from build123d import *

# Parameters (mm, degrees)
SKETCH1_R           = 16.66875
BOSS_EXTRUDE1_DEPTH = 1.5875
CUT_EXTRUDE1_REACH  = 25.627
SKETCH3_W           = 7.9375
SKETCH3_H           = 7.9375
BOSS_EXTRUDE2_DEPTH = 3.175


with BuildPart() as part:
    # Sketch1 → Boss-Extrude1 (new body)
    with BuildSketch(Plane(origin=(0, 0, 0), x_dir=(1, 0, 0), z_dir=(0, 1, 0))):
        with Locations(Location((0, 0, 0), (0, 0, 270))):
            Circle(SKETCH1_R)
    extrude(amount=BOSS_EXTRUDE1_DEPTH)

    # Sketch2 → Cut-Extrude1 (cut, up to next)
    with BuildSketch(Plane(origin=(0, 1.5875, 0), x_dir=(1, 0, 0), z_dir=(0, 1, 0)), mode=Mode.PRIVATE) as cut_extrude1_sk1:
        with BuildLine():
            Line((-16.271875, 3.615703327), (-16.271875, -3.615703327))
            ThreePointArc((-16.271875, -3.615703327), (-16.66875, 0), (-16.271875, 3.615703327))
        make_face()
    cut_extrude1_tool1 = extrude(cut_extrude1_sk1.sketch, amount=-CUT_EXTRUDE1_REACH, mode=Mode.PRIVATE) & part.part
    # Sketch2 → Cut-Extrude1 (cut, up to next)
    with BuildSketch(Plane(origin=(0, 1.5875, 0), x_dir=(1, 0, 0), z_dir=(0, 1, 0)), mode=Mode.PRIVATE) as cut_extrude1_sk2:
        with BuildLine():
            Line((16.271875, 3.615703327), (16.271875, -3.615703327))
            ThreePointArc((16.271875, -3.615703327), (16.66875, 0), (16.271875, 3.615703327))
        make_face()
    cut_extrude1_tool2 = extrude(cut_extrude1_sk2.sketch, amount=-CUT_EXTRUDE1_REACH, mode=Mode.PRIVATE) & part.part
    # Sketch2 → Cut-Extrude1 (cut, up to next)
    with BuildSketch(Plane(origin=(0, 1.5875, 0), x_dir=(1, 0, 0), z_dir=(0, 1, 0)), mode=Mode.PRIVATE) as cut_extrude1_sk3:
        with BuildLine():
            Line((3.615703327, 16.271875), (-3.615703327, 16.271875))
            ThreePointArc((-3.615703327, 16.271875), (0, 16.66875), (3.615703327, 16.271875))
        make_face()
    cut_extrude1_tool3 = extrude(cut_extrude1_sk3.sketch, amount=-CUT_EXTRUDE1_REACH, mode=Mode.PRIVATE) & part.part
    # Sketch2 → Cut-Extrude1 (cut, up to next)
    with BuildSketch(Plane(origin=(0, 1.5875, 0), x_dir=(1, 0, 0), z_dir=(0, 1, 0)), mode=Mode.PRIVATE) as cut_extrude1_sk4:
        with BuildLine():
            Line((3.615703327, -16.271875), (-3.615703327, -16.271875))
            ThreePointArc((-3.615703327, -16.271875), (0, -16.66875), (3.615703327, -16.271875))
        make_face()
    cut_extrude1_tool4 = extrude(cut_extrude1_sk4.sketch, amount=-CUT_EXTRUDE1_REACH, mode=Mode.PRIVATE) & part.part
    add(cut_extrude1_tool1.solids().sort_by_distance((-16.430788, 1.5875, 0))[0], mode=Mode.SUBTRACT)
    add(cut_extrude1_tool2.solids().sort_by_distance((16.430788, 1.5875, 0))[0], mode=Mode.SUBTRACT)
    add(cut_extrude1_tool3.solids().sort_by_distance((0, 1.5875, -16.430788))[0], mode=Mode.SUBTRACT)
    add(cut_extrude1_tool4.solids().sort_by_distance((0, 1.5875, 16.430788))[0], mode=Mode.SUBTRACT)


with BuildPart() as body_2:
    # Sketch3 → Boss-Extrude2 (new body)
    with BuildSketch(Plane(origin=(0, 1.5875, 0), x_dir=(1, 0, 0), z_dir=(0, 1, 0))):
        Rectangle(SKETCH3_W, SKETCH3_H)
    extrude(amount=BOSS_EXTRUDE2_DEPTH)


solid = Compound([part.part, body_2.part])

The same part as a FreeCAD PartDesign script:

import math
import FreeCAD as App
import Part
import Sketcher

V = App.Vector
Q = App.Units.Quantity

doc = App.newDocument("Part")
body = doc.addObject("PartDesign::Body", "Body")

# Sketch on XZ plane
sketch1 = body.newObject("Sketcher::SketchObject", "Sketch")
sketch1.AttachmentSupport = (doc.getObject("XZ_Plane"), [""])
sketch1.MapMode = "FlatFace"
sketch1.addGeometry(Part.Circle(V(0, 0, 0), V(0, 0, 1), 17), False)
sketch1.addConstraint([
    Sketcher.Constraint("Coincident", 0, 3, -1, 1),
    Sketcher.Constraint("Diameter", 0, Q("1.3125 in")),
])
pad1 = body.newObject("PartDesign::Pad", "Pad")
pad1.Profile = sketch1
pad1.Length = Q("0.0625 in")
pad1.Reversed = True

# Sketch on XZ plane
sketch2 = body.newObject("Sketcher::SketchObject", "Sketch001")
sketch2.AttachmentSupport = (doc.getObject("XZ_Plane"), [""])
sketch2.MapMode = "FlatFace"
sketch2.AttachmentOffset = App.Placement(V(0, 0, -0.0625 * 25.4), App.Rotation())
sketch2.addGeometry([
    Part.LineSegment(V(-16, 4, 0), V(-16, -4, 0)),
    Part.ArcOfCircle(Part.Circle(V(0, 0, 0), V(0, 0, 1), 17), math.radians(167), math.radians(193)),
], False)
sketch2.addConstraint([
    Sketcher.Constraint("Coincident", 0, 1, 1, 1),
    Sketcher.Constraint("Coincident", 1, 2, 0, 2),
    Sketcher.Constraint("Vertical", 0),
    Sketcher.Constraint("Coincident", 1, 3, -1, 1),
    Sketcher.Constraint("Radius", 1, Q("0.65625 in")),
    Sketcher.Constraint("DistanceX", 0, 1, -1, 1, Q("0.640625 in")),
])
pocket1 = body.newObject("PartDesign::Pocket", "Pocket")
pocket1.Profile = sketch2
pocket1.Type = "UpToFirst"
pocket1.Reversed = True

# Sketch on XZ plane
sketch3 = body.newObject("Sketcher::SketchObject", "Sketch002")
sketch3.AttachmentSupport = (doc.getObject("XZ_Plane"), [""])
sketch3.MapMode = "FlatFace"
sketch3.AttachmentOffset = App.Placement(V(0, 0, -0.0625 * 25.4), App.Rotation())
sketch3.addGeometry([
    Part.LineSegment(V(16, -4, 0), V(16, 4, 0)),
    Part.ArcOfCircle(Part.Circle(V(0, 0, 0), V(0, 0, 1), 17), math.radians(-13), math.radians(13)),
], False)
sketch3.addConstraint([
    Sketcher.Constraint("Coincident", 0, 1, 1, 1),
    Sketcher.Constraint("Coincident", 1, 2, 0, 2),
    Sketcher.Constraint("Vertical", 0),
    Sketcher.Constraint("Coincident", 1, 3, -1, 1),
    Sketcher.Constraint("Radius", 1, Q("0.65625 in")),
    Sketcher.Constraint("DistanceX", -1, 1, 0, 1, Q("0.640625 in")),
])
pocket2 = body.newObject("PartDesign::Pocket", "Pocket001")
pocket2.Profile = sketch3
pocket2.Type = "UpToFirst"
pocket2.Reversed = True

# Sketch on XZ plane
sketch4 = body.newObject("Sketcher::SketchObject", "Sketch003")
sketch4.AttachmentSupport = (doc.getObject("XZ_Plane"), [""])
sketch4.MapMode = "FlatFace"
sketch4.AttachmentOffset = App.Placement(V(0, 0, -0.0625 * 25.4), App.Rotation())
sketch4.addGeometry([
    Part.LineSegment(V(-4, -16, 0), V(4, -16, 0)),
    Part.ArcOfCircle(Part.Circle(V(0, 0, 0), V(0, 0, 1), 17), math.radians(-103), math.radians(-77)),
], False)
sketch4.addConstraint([
    Sketcher.Constraint("Coincident", 0, 1, 1, 1),
    Sketcher.Constraint("Coincident", 1, 2, 0, 2),
    Sketcher.Constraint("Horizontal", 0),
    Sketcher.Constraint("Coincident", 1, 3, -1, 1),
    Sketcher.Constraint("Radius", 1, Q("0.65625 in")),
    Sketcher.Constraint("DistanceY", 0, 1, -1, 1, Q("0.640625 in")),
])
pocket3 = body.newObject("PartDesign::Pocket", "Pocket002")
pocket3.Profile = sketch4
pocket3.Type = "UpToFirst"
pocket3.Reversed = True

# Sketch on XZ plane
sketch5 = body.newObject("Sketcher::SketchObject", "Sketch004")
sketch5.AttachmentSupport = (doc.getObject("XZ_Plane"), [""])
sketch5.MapMode = "FlatFace"
sketch5.AttachmentOffset = App.Placement(V(0, 0, -0.0625 * 25.4), App.Rotation())
sketch5.addGeometry([
    Part.LineSegment(V(4, 16, 0), V(-4, 16, 0)),
    Part.ArcOfCircle(Part.Circle(V(0, 0, 0), V(0, 0, 1), 17), math.radians(77), math.radians(103)),
], False)
sketch5.addConstraint([
    Sketcher.Constraint("Coincident", 0, 1, 1, 1),
    Sketcher.Constraint("Coincident", 1, 2, 0, 2),
    Sketcher.Constraint("Horizontal", 0),
    Sketcher.Constraint("Coincident", 1, 3, -1, 1),
    Sketcher.Constraint("Radius", 1, Q("0.65625 in")),
    Sketcher.Constraint("DistanceY", -1, 1, 0, 1, Q("0.640625 in")),
])
pocket4 = body.newObject("PartDesign::Pocket", "Pocket003")
pocket4.Profile = sketch5
pocket4.Type = "UpToFirst"
pocket4.Reversed = True
body2 = doc.addObject("PartDesign::Body", "Body001")

# Sketch on XZ plane
sketch6 = body2.newObject("Sketcher::SketchObject", "Sketch005")
sketch6.AttachmentSupport = (doc.getObject("XZ_Plane001"), [""])
sketch6.MapMode = "FlatFace"
sketch6.AttachmentOffset = App.Placement(V(0, 0, -0.0625 * 25.4), App.Rotation())
sketch6.addGeometry([
    Part.LineSegment(V(-4, -4, 0), V(-4, 4, 0)),
    Part.LineSegment(V(-4, 4, 0), V(4, 4, 0)),
    Part.LineSegment(V(4, 4, 0), V(4, -4, 0)),
    Part.LineSegment(V(4, -4, 0), V(-4, -4, 0)),
], False)
sketch6.addConstraint([
    Sketcher.Constraint("Coincident", 0, 2, 1, 1),
    Sketcher.Constraint("Coincident", 1, 2, 2, 1),
    Sketcher.Constraint("Coincident", 2, 2, 3, 1),
    Sketcher.Constraint("Coincident", 3, 2, 0, 1),
    Sketcher.Constraint("Vertical", 0),
    Sketcher.Constraint("Horizontal", 1),
    Sketcher.Constraint("Vertical", 2),
    Sketcher.Constraint("Horizontal", 3),
    Sketcher.Constraint("Symmetric", 0, 2, 2, 2, -1, 1),
    Sketcher.Constraint("Equal", 3, 0),
    Sketcher.Constraint("DistanceX", 1, 1, 1, 2, Q("0.3125 in")),
])
pad2 = body2.newObject("PartDesign::Pad", "Pad001")
pad2.Profile = sketch6
pad2.Length = Q("0.125 in")
pad2.Reversed = True

doc.recompute()
